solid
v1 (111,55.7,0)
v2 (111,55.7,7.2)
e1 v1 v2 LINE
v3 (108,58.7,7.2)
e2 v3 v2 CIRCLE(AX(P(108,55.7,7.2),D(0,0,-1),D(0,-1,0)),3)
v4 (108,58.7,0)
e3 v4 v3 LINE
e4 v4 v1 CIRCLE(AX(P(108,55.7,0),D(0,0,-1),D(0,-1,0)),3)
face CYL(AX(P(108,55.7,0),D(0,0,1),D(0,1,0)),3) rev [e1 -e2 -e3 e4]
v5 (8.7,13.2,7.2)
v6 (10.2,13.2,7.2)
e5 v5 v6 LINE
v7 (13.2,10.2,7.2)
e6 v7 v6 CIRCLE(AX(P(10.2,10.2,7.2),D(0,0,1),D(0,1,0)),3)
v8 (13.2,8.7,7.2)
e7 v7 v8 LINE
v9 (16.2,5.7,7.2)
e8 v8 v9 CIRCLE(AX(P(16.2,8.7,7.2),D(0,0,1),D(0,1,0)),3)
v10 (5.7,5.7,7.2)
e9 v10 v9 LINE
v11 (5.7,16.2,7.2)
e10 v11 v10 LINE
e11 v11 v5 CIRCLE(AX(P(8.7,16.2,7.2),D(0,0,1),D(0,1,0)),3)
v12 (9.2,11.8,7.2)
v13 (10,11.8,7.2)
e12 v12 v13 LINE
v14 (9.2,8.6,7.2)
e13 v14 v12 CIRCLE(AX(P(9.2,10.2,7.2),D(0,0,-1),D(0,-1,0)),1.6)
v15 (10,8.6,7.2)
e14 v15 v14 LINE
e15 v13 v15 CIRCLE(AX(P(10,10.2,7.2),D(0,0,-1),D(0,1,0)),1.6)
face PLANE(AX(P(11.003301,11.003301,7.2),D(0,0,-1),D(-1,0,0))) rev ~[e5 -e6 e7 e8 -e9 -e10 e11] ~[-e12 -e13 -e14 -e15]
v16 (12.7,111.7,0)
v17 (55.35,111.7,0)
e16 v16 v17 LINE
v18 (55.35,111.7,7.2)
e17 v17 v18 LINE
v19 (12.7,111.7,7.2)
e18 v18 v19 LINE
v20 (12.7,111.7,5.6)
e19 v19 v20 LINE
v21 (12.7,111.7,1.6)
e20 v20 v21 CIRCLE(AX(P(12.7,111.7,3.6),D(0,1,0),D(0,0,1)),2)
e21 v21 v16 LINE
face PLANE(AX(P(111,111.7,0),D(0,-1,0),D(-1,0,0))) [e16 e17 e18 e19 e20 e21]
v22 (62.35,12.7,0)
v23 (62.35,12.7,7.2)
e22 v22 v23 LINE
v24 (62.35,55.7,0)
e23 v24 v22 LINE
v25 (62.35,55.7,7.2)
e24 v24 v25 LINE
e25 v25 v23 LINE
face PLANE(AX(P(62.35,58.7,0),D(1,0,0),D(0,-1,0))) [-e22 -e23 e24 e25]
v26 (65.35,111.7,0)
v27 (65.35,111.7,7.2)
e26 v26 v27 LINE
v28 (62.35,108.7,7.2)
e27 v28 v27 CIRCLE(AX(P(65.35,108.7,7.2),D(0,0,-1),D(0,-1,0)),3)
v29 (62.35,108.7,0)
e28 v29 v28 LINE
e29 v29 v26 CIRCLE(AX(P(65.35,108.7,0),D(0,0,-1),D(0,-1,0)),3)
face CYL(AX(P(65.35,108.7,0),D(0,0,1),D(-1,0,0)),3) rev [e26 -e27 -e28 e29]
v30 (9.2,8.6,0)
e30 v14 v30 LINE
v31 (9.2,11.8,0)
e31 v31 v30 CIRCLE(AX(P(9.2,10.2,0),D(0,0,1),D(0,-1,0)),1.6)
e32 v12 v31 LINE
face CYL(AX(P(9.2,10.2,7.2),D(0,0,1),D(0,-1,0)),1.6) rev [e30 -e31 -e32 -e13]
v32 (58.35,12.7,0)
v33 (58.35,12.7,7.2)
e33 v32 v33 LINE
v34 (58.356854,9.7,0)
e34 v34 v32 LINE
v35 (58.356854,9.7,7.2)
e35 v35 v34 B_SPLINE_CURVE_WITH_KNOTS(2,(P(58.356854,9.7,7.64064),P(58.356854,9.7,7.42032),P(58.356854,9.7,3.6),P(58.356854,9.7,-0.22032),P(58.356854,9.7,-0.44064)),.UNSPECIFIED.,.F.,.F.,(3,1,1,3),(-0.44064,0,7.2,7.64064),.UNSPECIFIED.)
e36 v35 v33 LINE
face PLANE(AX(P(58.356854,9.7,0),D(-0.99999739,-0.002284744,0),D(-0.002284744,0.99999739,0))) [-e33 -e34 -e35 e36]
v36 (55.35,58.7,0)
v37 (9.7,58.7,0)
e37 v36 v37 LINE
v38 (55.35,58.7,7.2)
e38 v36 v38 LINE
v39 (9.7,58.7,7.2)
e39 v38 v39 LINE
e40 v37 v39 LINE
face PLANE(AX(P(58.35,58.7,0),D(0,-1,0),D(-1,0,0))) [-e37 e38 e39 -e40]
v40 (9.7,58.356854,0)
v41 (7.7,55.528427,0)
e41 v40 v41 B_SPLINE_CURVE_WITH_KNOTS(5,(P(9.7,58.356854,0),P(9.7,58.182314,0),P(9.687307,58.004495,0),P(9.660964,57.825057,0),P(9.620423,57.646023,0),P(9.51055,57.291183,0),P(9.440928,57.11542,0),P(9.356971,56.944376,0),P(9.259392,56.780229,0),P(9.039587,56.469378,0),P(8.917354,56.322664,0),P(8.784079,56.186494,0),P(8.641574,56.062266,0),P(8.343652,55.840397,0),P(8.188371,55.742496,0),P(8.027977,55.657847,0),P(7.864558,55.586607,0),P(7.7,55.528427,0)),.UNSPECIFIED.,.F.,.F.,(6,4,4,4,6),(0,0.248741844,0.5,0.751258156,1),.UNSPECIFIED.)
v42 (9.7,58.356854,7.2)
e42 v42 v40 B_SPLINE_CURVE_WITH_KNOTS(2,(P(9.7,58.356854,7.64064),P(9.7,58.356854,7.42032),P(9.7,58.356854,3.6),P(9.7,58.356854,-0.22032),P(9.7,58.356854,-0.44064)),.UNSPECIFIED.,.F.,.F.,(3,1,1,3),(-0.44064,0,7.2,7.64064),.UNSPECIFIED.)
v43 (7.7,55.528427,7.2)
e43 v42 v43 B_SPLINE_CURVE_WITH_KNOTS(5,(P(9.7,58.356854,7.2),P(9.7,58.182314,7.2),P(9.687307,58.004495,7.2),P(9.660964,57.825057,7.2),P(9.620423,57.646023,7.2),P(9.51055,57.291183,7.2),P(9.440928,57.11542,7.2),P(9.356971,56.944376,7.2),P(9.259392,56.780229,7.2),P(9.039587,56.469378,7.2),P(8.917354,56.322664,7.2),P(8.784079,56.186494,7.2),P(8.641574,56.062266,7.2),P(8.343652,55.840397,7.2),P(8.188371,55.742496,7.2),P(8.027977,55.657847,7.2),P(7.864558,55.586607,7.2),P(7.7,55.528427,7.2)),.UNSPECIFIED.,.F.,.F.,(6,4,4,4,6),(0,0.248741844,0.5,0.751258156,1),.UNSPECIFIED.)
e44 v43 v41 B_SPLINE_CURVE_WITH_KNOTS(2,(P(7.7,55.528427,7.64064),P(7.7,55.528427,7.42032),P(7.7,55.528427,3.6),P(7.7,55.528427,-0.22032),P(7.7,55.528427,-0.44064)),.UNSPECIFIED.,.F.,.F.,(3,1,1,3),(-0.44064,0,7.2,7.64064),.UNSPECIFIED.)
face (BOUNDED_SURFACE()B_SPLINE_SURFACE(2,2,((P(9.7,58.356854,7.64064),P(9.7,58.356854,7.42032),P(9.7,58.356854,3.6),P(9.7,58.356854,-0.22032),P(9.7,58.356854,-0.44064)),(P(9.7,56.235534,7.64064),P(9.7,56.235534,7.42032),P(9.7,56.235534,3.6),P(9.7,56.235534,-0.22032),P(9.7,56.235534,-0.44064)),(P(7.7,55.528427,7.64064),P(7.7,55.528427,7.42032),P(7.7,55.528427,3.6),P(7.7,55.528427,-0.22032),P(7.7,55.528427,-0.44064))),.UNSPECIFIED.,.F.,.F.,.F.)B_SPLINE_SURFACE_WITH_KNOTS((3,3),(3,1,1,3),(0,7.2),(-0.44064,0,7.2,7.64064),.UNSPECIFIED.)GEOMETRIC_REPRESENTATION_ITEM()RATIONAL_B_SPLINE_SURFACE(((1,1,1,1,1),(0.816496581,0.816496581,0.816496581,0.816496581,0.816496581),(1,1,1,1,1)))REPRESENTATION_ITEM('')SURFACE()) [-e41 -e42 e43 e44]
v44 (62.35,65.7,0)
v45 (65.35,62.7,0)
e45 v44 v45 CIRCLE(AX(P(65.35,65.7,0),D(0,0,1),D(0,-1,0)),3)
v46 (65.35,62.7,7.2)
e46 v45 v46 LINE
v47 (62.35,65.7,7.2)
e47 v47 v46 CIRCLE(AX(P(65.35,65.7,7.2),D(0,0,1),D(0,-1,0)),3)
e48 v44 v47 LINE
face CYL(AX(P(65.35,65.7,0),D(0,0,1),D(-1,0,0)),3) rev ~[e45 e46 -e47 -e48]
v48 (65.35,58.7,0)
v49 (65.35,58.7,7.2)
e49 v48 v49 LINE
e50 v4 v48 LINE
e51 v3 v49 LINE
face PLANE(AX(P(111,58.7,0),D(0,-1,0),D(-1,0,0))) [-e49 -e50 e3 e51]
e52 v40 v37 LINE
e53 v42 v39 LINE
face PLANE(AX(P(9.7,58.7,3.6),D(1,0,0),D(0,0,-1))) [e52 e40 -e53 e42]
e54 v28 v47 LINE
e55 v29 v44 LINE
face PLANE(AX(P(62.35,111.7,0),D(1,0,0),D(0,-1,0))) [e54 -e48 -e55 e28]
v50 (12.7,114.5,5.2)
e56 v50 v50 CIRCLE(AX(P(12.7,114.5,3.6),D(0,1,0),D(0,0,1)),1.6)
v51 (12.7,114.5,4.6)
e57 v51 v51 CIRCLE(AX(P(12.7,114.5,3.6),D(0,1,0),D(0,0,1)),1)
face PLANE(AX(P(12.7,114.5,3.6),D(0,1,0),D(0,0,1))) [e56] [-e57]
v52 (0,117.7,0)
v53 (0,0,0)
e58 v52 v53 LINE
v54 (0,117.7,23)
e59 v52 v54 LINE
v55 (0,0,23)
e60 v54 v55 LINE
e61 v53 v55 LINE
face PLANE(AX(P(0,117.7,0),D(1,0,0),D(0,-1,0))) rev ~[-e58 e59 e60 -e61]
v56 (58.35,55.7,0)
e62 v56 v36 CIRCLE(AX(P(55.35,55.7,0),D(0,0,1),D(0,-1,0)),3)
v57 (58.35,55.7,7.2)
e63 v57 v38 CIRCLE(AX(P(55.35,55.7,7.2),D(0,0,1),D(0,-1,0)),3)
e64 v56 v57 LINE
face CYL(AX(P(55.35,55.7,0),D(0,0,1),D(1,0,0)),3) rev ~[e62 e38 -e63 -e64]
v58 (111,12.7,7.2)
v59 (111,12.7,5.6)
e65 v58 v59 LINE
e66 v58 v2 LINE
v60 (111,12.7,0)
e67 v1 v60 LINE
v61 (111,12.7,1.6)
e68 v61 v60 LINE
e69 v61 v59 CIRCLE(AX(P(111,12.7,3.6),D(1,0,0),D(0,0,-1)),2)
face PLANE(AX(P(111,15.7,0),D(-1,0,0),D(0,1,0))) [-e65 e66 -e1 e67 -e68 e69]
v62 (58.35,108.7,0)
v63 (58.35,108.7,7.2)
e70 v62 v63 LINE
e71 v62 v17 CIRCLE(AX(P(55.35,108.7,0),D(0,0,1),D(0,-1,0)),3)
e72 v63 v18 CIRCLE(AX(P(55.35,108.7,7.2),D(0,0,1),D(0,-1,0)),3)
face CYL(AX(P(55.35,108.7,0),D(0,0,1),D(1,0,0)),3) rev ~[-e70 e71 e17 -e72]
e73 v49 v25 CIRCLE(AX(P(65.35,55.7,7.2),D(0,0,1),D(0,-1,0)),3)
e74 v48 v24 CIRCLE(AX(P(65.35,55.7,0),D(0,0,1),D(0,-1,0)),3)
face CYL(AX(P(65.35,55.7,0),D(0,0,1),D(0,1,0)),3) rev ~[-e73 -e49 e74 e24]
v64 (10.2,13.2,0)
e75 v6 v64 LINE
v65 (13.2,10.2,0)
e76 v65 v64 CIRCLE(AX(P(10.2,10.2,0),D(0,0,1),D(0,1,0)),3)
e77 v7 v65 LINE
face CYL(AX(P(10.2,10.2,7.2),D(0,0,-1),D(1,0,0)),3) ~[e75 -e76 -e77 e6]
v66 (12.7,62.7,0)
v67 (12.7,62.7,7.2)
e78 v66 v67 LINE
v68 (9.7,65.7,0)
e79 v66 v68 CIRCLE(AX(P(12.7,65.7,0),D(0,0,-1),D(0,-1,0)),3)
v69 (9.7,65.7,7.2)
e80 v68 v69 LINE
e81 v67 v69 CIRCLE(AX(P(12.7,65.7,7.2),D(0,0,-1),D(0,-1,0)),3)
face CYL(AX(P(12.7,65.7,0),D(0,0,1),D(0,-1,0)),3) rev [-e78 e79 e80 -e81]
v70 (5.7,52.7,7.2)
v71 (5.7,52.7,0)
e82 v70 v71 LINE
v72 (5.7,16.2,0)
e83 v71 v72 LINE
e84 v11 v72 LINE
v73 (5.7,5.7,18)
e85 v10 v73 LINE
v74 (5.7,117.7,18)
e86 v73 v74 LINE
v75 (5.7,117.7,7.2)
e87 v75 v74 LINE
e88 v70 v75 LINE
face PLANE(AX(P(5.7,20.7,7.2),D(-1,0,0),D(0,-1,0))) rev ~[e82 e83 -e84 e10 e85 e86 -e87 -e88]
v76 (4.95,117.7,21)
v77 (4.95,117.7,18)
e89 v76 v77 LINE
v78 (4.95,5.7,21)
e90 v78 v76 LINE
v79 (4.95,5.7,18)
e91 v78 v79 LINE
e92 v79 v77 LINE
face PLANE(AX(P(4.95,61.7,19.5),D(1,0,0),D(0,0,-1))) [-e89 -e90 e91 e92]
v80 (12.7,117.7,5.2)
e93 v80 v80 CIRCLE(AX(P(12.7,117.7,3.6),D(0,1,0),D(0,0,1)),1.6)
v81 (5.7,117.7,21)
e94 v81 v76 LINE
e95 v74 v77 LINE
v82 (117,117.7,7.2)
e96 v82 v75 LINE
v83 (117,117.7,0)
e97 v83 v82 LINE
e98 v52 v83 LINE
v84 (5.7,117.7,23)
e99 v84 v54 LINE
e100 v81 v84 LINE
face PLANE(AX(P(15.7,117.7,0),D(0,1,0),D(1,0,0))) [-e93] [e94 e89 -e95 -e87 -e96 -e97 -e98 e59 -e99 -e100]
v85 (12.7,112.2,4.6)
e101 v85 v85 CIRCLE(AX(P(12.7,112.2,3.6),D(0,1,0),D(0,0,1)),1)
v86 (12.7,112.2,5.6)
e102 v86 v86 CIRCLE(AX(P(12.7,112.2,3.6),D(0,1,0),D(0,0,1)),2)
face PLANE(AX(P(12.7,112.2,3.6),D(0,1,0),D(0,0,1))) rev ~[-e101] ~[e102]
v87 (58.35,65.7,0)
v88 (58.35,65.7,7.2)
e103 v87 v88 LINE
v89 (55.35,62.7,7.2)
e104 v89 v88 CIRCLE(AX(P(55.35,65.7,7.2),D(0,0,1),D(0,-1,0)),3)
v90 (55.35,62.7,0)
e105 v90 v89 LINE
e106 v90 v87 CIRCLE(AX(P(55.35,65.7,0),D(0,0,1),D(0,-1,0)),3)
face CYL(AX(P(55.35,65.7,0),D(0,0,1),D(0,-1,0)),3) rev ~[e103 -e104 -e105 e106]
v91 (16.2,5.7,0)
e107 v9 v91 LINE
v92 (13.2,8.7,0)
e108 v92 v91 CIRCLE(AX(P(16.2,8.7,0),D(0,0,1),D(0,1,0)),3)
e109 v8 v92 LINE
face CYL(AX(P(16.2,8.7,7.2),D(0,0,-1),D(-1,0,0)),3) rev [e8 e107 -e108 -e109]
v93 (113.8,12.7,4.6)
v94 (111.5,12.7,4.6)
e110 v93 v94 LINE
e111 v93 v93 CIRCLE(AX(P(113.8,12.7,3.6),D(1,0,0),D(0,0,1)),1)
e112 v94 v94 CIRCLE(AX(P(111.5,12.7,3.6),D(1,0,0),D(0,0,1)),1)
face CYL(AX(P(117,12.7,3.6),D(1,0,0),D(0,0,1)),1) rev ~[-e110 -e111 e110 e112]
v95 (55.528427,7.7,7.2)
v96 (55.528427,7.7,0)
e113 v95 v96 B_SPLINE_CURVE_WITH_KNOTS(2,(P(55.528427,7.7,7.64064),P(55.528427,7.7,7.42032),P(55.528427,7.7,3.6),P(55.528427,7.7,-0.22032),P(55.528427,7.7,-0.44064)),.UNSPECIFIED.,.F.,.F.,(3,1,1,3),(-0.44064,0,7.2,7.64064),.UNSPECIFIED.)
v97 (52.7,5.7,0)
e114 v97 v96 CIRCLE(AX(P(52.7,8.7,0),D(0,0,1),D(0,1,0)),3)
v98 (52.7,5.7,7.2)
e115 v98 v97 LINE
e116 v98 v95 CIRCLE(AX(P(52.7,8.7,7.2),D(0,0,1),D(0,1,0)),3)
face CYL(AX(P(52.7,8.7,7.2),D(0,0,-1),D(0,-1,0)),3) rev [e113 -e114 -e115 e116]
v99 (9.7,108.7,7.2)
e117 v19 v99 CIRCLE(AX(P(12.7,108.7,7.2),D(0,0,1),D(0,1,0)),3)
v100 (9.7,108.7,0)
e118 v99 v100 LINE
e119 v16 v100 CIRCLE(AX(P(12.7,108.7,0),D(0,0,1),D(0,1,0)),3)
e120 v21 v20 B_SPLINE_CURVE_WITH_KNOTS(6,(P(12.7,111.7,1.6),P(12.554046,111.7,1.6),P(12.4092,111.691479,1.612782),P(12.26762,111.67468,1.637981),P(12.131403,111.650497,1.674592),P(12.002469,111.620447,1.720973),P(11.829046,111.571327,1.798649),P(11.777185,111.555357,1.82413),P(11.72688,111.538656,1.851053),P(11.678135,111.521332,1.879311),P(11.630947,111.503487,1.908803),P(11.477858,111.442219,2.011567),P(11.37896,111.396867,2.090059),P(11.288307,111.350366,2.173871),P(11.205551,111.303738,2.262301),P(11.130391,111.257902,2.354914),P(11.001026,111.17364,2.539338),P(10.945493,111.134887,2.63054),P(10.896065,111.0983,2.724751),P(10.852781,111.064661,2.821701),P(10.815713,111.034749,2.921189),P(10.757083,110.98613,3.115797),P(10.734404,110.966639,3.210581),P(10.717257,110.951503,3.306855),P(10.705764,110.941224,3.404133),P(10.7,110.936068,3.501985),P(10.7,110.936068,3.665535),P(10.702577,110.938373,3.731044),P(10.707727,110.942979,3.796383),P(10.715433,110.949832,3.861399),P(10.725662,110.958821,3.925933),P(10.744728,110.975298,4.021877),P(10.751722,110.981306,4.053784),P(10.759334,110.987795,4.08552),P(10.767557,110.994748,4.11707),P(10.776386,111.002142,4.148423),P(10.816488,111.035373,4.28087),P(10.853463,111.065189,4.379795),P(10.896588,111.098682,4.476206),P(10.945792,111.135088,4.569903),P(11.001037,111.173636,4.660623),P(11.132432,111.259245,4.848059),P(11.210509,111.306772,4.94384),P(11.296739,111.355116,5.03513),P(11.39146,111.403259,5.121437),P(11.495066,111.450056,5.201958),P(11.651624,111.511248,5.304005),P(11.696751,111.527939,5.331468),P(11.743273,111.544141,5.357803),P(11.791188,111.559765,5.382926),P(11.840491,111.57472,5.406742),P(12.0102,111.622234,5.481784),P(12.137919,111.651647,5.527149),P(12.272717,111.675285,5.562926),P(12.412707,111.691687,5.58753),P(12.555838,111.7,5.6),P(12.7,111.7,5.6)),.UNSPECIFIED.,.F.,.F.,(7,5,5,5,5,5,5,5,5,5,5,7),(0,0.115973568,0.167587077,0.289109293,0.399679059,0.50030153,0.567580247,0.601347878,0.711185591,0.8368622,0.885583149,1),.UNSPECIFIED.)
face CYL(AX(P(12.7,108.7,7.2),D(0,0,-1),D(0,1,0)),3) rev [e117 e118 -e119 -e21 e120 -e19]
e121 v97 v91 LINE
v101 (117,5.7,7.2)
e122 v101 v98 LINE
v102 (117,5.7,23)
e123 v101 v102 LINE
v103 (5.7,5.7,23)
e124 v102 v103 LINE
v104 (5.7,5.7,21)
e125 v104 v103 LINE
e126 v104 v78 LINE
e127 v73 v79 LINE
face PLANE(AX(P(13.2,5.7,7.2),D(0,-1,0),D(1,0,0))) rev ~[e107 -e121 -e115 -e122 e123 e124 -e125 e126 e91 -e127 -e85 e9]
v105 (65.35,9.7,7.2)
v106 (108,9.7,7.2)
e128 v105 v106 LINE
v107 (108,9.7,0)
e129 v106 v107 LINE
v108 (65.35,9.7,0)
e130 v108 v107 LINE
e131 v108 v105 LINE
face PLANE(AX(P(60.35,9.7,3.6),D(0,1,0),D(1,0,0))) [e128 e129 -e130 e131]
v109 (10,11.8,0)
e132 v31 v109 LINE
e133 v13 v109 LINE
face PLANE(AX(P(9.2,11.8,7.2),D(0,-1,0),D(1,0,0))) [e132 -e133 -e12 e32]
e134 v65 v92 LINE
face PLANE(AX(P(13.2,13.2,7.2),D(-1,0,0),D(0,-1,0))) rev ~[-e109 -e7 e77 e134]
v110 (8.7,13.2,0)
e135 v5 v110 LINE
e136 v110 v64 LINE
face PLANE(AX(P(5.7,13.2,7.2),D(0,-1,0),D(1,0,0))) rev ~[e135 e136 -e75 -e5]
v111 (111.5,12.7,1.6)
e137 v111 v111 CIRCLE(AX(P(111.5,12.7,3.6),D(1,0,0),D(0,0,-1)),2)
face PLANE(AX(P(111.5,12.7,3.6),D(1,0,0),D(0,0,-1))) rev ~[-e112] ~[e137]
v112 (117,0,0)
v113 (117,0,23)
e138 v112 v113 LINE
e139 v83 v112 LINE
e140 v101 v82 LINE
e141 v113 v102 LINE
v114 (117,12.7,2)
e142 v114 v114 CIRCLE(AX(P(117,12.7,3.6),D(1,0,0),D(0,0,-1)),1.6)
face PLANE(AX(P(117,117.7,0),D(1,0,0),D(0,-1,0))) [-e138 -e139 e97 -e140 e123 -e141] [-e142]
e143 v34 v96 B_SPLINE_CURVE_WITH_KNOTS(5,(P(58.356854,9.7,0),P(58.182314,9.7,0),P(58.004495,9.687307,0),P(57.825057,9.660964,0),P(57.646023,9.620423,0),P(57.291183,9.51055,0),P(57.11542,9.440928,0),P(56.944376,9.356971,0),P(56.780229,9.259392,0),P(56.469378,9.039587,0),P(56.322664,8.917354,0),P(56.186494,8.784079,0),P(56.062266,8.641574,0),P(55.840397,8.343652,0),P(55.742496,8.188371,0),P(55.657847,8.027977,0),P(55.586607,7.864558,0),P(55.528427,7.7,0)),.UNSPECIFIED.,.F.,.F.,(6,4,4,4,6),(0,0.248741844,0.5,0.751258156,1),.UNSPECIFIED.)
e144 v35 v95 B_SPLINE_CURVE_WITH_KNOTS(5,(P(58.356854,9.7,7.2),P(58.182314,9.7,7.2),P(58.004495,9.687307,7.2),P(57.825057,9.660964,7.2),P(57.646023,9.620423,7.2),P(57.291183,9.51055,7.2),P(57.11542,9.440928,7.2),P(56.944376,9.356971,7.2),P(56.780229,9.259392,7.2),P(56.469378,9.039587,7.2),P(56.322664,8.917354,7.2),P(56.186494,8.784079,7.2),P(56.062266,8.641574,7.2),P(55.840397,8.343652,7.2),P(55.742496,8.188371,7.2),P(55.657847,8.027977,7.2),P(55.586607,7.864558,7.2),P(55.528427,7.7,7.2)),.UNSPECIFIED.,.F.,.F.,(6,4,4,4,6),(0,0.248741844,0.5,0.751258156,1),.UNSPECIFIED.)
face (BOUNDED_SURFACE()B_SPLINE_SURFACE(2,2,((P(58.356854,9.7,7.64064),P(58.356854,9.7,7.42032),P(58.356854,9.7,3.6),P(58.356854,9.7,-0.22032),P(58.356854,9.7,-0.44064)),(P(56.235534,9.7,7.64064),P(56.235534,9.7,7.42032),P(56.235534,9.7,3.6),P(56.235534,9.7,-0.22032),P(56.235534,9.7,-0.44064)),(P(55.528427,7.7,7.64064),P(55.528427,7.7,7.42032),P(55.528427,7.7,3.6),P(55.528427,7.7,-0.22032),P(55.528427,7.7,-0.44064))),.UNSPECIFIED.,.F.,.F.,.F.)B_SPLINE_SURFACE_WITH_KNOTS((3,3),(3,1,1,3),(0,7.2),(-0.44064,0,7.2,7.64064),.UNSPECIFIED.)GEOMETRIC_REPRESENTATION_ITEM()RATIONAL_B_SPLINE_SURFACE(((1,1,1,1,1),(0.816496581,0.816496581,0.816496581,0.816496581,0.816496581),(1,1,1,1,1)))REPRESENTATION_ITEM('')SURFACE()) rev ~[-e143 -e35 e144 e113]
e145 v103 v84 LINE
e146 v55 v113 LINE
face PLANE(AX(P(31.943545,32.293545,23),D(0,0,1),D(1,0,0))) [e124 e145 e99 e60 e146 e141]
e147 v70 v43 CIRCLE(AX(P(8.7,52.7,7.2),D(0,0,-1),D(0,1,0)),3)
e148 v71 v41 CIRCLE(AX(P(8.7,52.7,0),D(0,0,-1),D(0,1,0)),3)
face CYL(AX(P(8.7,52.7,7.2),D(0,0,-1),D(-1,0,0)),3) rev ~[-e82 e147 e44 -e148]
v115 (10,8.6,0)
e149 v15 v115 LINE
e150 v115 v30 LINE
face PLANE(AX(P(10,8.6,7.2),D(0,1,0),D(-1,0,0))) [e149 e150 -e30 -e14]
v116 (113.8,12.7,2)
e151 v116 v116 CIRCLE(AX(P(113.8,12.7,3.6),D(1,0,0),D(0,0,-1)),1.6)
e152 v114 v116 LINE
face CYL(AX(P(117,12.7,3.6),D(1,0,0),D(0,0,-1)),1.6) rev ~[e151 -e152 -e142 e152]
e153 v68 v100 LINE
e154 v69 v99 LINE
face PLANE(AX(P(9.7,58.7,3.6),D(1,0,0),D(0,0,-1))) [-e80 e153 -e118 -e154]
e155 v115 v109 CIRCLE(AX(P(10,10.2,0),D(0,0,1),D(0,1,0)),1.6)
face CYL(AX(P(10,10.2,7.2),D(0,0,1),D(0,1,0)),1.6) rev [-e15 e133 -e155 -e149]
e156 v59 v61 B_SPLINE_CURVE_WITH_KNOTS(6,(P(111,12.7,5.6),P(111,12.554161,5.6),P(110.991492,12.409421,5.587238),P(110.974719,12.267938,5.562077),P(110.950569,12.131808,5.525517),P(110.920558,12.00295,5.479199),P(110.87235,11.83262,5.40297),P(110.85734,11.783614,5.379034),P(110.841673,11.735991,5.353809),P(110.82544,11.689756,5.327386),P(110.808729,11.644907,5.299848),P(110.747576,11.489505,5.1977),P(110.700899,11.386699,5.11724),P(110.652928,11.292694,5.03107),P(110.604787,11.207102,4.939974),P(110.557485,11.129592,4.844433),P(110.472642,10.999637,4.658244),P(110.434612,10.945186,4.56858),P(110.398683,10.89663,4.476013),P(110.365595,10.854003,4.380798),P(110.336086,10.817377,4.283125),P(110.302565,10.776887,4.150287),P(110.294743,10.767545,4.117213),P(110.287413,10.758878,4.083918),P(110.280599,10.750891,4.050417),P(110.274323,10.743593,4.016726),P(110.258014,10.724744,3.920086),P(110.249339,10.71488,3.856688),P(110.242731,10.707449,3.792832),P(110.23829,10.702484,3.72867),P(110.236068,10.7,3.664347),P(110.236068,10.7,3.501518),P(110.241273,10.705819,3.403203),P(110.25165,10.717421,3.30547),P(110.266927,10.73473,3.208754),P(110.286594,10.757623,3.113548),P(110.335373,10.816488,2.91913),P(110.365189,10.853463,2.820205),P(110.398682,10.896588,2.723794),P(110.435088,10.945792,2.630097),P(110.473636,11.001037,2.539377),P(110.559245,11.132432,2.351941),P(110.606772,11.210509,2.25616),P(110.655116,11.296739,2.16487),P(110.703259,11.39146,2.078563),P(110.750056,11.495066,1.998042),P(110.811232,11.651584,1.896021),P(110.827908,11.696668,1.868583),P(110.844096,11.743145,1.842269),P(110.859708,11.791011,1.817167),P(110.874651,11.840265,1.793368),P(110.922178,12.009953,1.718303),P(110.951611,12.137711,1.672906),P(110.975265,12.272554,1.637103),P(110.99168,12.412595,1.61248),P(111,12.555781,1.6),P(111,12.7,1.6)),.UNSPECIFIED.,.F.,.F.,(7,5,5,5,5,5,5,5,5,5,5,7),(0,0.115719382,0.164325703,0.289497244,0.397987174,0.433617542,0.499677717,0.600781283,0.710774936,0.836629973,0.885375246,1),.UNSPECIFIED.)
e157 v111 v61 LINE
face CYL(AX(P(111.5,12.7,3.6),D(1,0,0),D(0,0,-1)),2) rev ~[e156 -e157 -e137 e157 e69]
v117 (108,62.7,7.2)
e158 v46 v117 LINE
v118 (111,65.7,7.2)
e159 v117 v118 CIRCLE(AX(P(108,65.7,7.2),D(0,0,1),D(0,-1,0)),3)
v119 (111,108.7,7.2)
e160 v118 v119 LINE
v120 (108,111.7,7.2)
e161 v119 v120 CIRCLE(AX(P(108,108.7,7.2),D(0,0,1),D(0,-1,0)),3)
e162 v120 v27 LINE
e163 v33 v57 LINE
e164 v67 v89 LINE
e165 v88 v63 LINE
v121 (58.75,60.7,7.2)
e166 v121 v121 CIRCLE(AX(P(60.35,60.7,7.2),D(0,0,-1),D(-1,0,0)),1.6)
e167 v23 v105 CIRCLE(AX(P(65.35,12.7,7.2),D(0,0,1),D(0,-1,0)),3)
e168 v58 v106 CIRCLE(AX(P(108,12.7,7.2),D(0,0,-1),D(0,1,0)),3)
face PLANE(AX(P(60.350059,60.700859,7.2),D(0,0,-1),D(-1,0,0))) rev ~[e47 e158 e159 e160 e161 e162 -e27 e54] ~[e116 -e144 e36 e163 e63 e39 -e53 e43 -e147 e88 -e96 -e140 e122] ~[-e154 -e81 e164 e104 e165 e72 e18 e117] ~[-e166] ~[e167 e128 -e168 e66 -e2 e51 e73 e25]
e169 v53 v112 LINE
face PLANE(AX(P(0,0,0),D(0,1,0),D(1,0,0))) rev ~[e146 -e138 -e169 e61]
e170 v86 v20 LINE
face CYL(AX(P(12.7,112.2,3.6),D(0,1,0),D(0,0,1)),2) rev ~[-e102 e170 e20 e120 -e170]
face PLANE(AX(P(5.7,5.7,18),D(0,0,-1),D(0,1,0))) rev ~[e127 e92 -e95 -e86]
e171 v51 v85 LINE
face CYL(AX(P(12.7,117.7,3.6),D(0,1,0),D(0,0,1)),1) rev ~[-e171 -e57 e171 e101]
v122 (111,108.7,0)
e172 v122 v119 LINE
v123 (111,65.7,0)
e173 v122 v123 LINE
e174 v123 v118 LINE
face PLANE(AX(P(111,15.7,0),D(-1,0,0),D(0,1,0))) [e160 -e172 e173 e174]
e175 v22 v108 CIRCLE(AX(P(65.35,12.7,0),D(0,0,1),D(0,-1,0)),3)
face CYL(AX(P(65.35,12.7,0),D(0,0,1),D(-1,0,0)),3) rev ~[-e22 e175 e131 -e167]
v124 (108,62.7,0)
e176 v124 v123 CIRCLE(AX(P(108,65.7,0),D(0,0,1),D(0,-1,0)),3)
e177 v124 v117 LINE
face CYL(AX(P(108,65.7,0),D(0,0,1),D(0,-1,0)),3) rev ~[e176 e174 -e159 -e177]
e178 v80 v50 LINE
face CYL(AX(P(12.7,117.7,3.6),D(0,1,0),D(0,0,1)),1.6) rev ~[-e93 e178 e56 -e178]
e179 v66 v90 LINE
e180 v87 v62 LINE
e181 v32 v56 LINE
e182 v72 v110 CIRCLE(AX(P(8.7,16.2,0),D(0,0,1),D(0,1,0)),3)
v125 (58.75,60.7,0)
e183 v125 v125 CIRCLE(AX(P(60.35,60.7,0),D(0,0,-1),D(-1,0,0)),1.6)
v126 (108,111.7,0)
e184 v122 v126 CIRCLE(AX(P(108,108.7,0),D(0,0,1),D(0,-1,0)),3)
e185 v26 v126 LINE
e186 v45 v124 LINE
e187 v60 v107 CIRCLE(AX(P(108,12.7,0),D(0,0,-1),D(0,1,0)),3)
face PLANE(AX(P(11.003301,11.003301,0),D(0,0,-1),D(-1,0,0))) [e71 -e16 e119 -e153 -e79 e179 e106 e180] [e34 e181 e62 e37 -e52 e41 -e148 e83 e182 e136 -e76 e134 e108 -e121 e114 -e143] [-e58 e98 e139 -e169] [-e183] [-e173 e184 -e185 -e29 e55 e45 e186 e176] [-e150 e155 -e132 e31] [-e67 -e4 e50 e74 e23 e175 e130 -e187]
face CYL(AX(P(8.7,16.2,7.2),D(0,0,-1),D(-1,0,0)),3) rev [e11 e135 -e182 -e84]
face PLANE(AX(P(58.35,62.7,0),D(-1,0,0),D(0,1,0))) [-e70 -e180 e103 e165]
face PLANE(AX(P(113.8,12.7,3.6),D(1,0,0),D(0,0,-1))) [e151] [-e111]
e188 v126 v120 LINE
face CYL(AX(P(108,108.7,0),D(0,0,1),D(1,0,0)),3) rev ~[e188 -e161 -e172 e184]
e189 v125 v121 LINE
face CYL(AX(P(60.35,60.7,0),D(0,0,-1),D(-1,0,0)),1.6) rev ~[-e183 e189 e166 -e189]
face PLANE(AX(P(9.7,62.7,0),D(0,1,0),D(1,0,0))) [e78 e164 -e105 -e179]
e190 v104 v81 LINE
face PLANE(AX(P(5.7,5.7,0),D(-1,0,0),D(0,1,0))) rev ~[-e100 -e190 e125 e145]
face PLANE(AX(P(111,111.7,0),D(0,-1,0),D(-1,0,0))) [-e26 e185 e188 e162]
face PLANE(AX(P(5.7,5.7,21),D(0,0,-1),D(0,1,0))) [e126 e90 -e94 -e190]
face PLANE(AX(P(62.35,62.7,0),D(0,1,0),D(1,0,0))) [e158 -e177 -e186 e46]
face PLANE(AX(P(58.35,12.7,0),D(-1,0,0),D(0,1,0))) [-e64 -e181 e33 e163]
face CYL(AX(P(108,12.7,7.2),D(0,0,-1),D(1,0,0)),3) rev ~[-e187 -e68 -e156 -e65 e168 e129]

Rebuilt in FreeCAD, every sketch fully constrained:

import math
import FreeCAD as App
import Part
import Sketcher


def edges_at(feature, points):
    """Names of the edges that pass closest to the given points."""
    edges = feature.Shape.Edges
    near = lambda p: min(range(len(edges)), key=lambda i: edges[i].distToShape(Part.Vertex(*p))[0])
    return sorted({f"Edge{near(p) + 1}" for p in points})


def add_polygon(sketch, points):
    """Adds a closed chain of lines whose ends are joined by coincident constraints."""
    first, n = sketch.GeometryCount, len(points)
    for a, b in zip(points, points[1:] + points[:1]):
        sketch.addGeometry(Part.LineSegment(App.Vector(*a, 0), App.Vector(*b, 0)), False)
    for i in range(n):
        sketch.addConstraint(Sketcher.Constraint("Coincident", first + i, 2, first + (i + 1) % n, 1))

doc = App.newDocument("Part")
body = doc.addObject("PartDesign::Body", "Body")

sketch1 = doc.addObject("Sketcher::SketchObject", "Sketch")
body.addObject(sketch1)
sketch1.AttachmentSupport = (doc.XY_Plane, [""])
sketch1.MapMode = "FlatFace"
add_polygon(sketch1, [(0, 118), (0, 0), (117, 0), (117, 6), (6, 6), (6, 118)])
sketch1.addConstraint(Sketcher.Constraint("Vertical", 0))
sketch1.addConstraint(Sketcher.Constraint("Horizontal", 1))
sketch1.addConstraint(Sketcher.Constraint("Vertical", 2))
sketch1.addConstraint(Sketcher.Constraint("Horizontal", 3))
sketch1.addConstraint(Sketcher.Constraint("Vertical", 4))
sketch1.addConstraint(Sketcher.Constraint("Horizontal", 5))
sketch1.addConstraint(Sketcher.Constraint("Coincident", 0, 2, -1, 1))
sketch1.addConstraint(Sketcher.Constraint("Equal", 5, 2))
sketch1.addConstraint(Sketcher.Constraint("DistanceX", 1, 1, 1, 2, 117.0))
sketch1.addConstraint(Sketcher.Constraint("DistanceY", 4, 1, 4, 2, 112.0))
sketch1.addConstraint(Sketcher.Constraint("DistanceX", 3, 2, 3, 1, 111.3))
pad1 = doc.addObject("PartDesign::Pad", "Pad")
body.addObject(pad1)
pad1.Profile = sketch1
pad1.Length = 23

sketch2 = doc.addObject("Sketcher::SketchObject", "Sketch001")
body.addObject(sketch2)
sketch2.AttachmentSupport = (doc.YZ_Plane, [""])
sketch2.MapMode = "FlatFace"
sketch2.AttachmentOffset = App.Placement(App.Vector(0, 0, 5.7), App.Rotation())
add_polygon(sketch2, [(117.7, 21), (5.7, 21), (5.7, 18), (117.7, 18)])
sketch2.addConstraint(Sketcher.Constraint("Horizontal", 0))
sketch2.addConstraint(Sketcher.Constraint("Vertical", 1))
sketch2.addConstraint(Sketcher.Constraint("Horizontal", 2))
sketch2.addConstraint(Sketcher.Constraint("Vertical", 3))
sketch2.addConstraint(Sketcher.Constraint("DistanceX", 0, 2, 0, 1, 112.0))
sketch2.addConstraint(Sketcher.Constraint("DistanceY", 1, 2, 1, 1, 3.0))
sketch2.addConstraint(Sketcher.Constraint("DistanceY", -1, 1, 0, 2, 21.0))
sketch2.addConstraint(Sketcher.Constraint("DistanceX", -1, 1, 0, 2, 5.7))
pocket1 = doc.addObject("PartDesign::Pocket", "Pocket")
body.addObject(pocket1)
pocket1.Profile = sketch2
pocket1.Length = 0.75

sketch3 = doc.addObject("Sketcher::SketchObject", "Sketch002")
body.addObject(sketch3)
sketch3.AttachmentSupport = (doc.YZ_Plane, [""])
sketch3.MapMode = "FlatFace"
sketch3.AttachmentOffset = App.Placement(App.Vector(0, 0, 5.7), App.Rotation())
add_polygon(sketch3, [(118, 7), (112, 7), (112, 0), (118, 0)])
sketch3.addConstraint(Sketcher.Constraint("Horizontal", 0))
sketch3.addConstraint(Sketcher.Constraint("Vertical", 1))
sketch3.addConstraint(Sketcher.Constraint("Horizontal", 2))
sketch3.addConstraint(Sketcher.Constraint("Vertical", 3))
sketch3.addConstraint(Sketcher.Constraint("PointOnObject", 1, 2, -1))
sketch3.addConstraint(Sketcher.Constraint("DistanceX", 0, 2, 0, 1, 6.0))
sketch3.addConstraint(Sketcher.Constraint("DistanceY", 1, 2, 1, 1, 7.2))
sketch3.addConstraint(Sketcher.Constraint("DistanceX", -1, 1, 0, 2, 111.7))
pad2 = doc.addObject("PartDesign::Pad", "Pad001")
body.addObject(pad2)
pad2.Profile = sketch3
pad2.Length = 10

sketch4 = doc.addObject("Sketcher::SketchObject", "Sketch003")
body.addObject(sketch4)
sketch4.AttachmentSupport = (doc.YZ_Plane, [""])
sketch4.MapMode = "FlatFace"
sketch4.AttachmentOffset = App.Placement(App.Vector(0, 0, 5.7), App.Rotation())
add_polygon(sketch4, [(112, 7), (6, 7), (6, 0), (112, 0)])
sketch4.addConstraint(Sketcher.Constraint("Horizontal", 0))
sketch4.addConstraint(Sketcher.Constraint("Vertical", 1))
sketch4.addConstraint(Sketcher.Constraint("Horizontal", 2))
sketch4.addConstraint(Sketcher.Constraint("Vertical", 3))
sketch4.addConstraint(Sketcher.Constraint("PointOnObject", 1, 2, -1))
sketch4.addConstraint(Sketcher.Constraint("DistanceX", 0, 2, 0, 1, 106.0))
sketch4.addConstraint(Sketcher.Constraint("DistanceY", 1, 2, 1, 1, 7.2))
sketch4.addConstraint(Sketcher.Constraint("DistanceX", -1, 1, 0, 2, 5.7))
pad3 = doc.addObject("PartDesign::Pad", "Pad002")
body.addObject(pad3)
pad3.Profile = sketch4
pad3.Length = 4
doc.recompute()

fillet = doc.addObject("PartDesign::Fillet", "Fillet")
body.addObject(fillet)
fillet.Base = (pad3, edges_at(pad3, [(9.7, 111.7, 3.6)]))
fillet.Radius = 3

sketch5 = doc.addObject("Sketcher::SketchObject", "Sketch004")
body.addObject(sketch5)
sketch5.AttachmentSupport = (doc.XZ_Plane, [""])
sketch5.MapMode = "FlatFace"
sketch5.AttachmentOffset = App.Placement(App.Vector(0, 0, -5.7), App.Rotation())
add_polygon(sketch5, [(10, 0), (10, 7), (111, 7), (111, 0)])
sketch5.addConstraint(Sketcher.Constraint("Vertical", 0))
sketch5.addConstraint(Sketcher.Constraint("Horizontal", 1))
sketch5.addConstraint(Sketcher.Constraint("Vertical", 2))
sketch5.addConstraint(Sketcher.Constraint("Horizontal", 3))
sketch5.addConstraint(Sketcher.Constraint("PointOnObject", 2, 2, -1))
sketch5.addConstraint(Sketcher.Constraint("DistanceX", 1, 1, 1, 2, 101.3))
sketch5.addConstraint(Sketcher.Constraint("DistanceY", 0, 1, 0, 2, 7.2))
sketch5.addConstraint(Sketcher.Constraint("DistanceX", -1, 1, 1, 2, 111.0))
pad4 = doc.addObject("PartDesign::Pad", "Pad003")
body.addObject(pad4)
pad4.Profile = sketch5
pad4.Length = 4
pad4.Reversed = True

sketch6 = doc.addObject("Sketcher::SketchObject", "Sketch005")
body.addObject(sketch6)
sketch6.AttachmentSupport = (doc.XZ_Plane, [""])
sketch6.MapMode = "FlatFace"
sketch6.AttachmentOffset = App.Placement(App.Vector(0, 0, -5.7), App.Rotation())
add_polygon(sketch6, [(111, 0), (111, 7), (117, 7), (117, 0)])
sketch6.addConstraint(Sketcher.Constraint("Vertical", 0))
sketch6.addConstraint(Sketcher.Constraint("Horizontal", 1))
sketch6.addConstraint(Sketcher.Constraint("Vertical", 2))
sketch6.addConstraint(Sketcher.Constraint("Horizontal", 3))
sketch6.addConstraint(Sketcher.Constraint("PointOnObject", 2, 2, -1))
sketch6.addConstraint(Sketcher.Constraint("DistanceX", 1, 1, 1, 2, 6.0))
sketch6.addConstraint(Sketcher.Constraint("DistanceY", 0, 1, 0, 2, 7.2))
sketch6.addConstraint(Sketcher.Constraint("DistanceX", -1, 1, 0, 2, 111.0))
pad5 = doc.addObject("PartDesign::Pad", "Pad004")
body.addObject(pad5)
pad5.Profile = sketch6
pad5.Length = 10
pad5.Reversed = True
doc.recompute()

fillet2 = doc.addObject("PartDesign::Fillet", "Fillet001")
body.addObject(fillet2)
fillet2.Base = (pad5, edges_at(pad5, [(111, 9.7, 3.6)]))
fillet2.Radius = 3

sketch7 = doc.addObject("Sketcher::SketchObject", "Sketch006")
body.addObject(sketch7)
sketch7.AttachmentSupport = (doc.XY_Plane, [""])
sketch7.MapMode = "FlatFace"
sketch7.AttachmentOffset = App.Placement(App.Vector(0, 0, 7.2), App.Rotation())
add_polygon(sketch7, [(6, 56), (6, 6), (56, 6), (56, 56)])
sketch7.addConstraint(Sketcher.Constraint("Vertical", 0))
sketch7.addConstraint(Sketcher.Constraint("Horizontal", 1))
sketch7.addConstraint(Sketcher.Constraint("Vertical", 2))
sketch7.addConstraint(Sketcher.Constraint("Horizontal", 3))
sketch7.addConstraint(Sketcher.Constraint("Equal", 3, 0))
sketch7.addConstraint(Sketcher.Constraint("DistanceX", 1, 1, 1, 2, 50.0))
sketch7.addConstraint(Sketcher.Constraint("DistanceX", -1, 1, 0, 2, 5.7))
sketch7.addConstraint(Sketcher.Constraint("DistanceY", -1, 1, 0, 2, 5.7))
pocket2 = doc.addObject("PartDesign::Pocket", "Pocket001")
body.addObject(pocket2)
pocket2.Profile = sketch7
pocket2.Type = "ThroughAll"
doc.recompute()

fillet3 = doc.addObject("PartDesign::Fillet", "Fillet002")
body.addObject(fillet3)
fillet3.Base = (pocket2, edges_at(pocket2, [(5.7, 55.7, 3.6)]))
fillet3.Radius = 3
doc.recompute()

fillet4 = doc.addObject("PartDesign::Fillet", "Fillet003")
body.addObject(fillet4)
fillet4.Base = (fillet3, edges_at(fillet3, [(9.7, 55.7, 3.6)]))
fillet4.Radius = 3
doc.recompute()

fillet5 = doc.addObject("PartDesign::Fillet", "Fillet004")
body.addObject(fillet5)
fillet5.Base = (fillet4, edges_at(fillet4, [(55.7, 5.7, 3.6)]))
fillet5.Radius = 3
doc.recompute()

fillet6 = doc.addObject("PartDesign::Fillet", "Fillet005")
body.addObject(fillet6)
fillet6.Base = (fillet5, edges_at(fillet5, [(55.7, 9.7, 3.6)]))
fillet6.Radius = 3

sketch8 = doc.addObject("Sketcher::SketchObject", "Sketch007")
body.addObject(sketch8)
sketch8.AttachmentSupport = (doc.YZ_Plane, [""])
sketch8.MapMode = "FlatFace"
sketch8.AttachmentOffset = App.Placement(App.Vector(0, 0, 117), App.Rotation())
sketch8.addGeometry(Part.Circle(App.Vector(12.7, 3.6, 0), App.Vector(0, 0, 1), 1), False)
sketch8.addConstraint(Sketcher.Constraint("Diameter", 0, 2.0))
sketch8.addConstraint(Sketcher.Constraint("DistanceX", -1, 1, 0, 3, 12.7))
sketch8.addConstraint(Sketcher.Constraint("DistanceY", -1, 1, 0, 3, 3.6))
pocket3 = doc.addObject("PartDesign::Pocket", "Pocket002")
body.addObject(pocket3)
pocket3.Profile = sketch8
pocket3.Length = 6

sketch9 = doc.addObject("Sketcher::SketchObject", "Sketch008")
body.addObject(sketch9)
sketch9.AttachmentSupport = (doc.YZ_Plane, [""])
sketch9.MapMode = "FlatFace"
sketch9.AttachmentOffset = App.Placement(App.Vector(0, 0, 117), App.Rotation())
sketch9.addGeometry(Part.Circle(App.Vector(12.7, 3.6, 0), App.Vector(0, 0, 1), 1), False)
sketch9.addConstraint(Sketcher.Constraint("Diameter", 0, 2.0))
sketch9.addConstraint(Sketcher.Constraint("DistanceX", -1, 1, 0, 3, 12.7))
sketch9.addConstraint(Sketcher.Constraint("DistanceY", -1, 1, 0, 3, 3.6))
pocket4 = doc.addObject("PartDesign::Pocket", "Pocket003")
body.addObject(pocket4)
pocket4.Profile = sketch9
pocket4.Length = 168.54489
pocket4.Reversed = True

sketch10 = doc.addObject("Sketcher::SketchObject", "Sketch009")
body.addObject(sketch10)
sketch10.AttachmentSupport = (doc.YZ_Plane, [""])
sketch10.MapMode = "FlatFace"
sketch10.AttachmentOffset = App.Placement(App.Vector(0, 0, 117), App.Rotation())
sketch10.addGeometry(Part.Circle(App.Vector(12.7, 3.6, 0), App.Vector(0, 0, 1), 1.6), False)
sketch10.addGeometry(Part.Circle(App.Vector(12.7, 3.6, 0), App.Vector(0, 0, 1), 1), False)
sketch10.addConstraint(Sketcher.Constraint("Coincident", 1, 3, 0, 3))
sketch10.addConstraint(Sketcher.Constraint("Diameter", 1, 2.0))
sketch10.addConstraint(Sketcher.Constraint("Diameter", 0, 3.2))
sketch10.addConstraint(Sketcher.Constraint("DistanceX", -1, 1, 0, 3, 12.7))
sketch10.addConstraint(Sketcher.Constraint("DistanceY", -1, 1, 0, 3, 3.6))
pocket5 = doc.addObject("PartDesign::Pocket", "Pocket004")
body.addObject(pocket5)
pocket5.Profile = sketch10
pocket5.Length = 3.2

sketch11 = doc.addObject("Sketcher::SketchObject", "Sketch010")
body.addObject(sketch11)
sketch11.AttachmentSupport = (doc.YZ_Plane, [""])
sketch11.MapMode = "FlatFace"
sketch11.AttachmentOffset = App.Placement(App.Vector(0, 0, 111.5), App.Rotation())
sketch11.addGeometry(Part.Circle(App.Vector(12.7, 3.6, 0), App.Vector(0, 0, 1), 2), False)
sketch11.addConstraint(Sketcher.Constraint("Diameter", 0, 4.0))
sketch11.addConstraint(Sketcher.Constraint("DistanceX", -1, 1, 0, 3, 12.7))
sketch11.addConstraint(Sketcher.Constraint("DistanceY", -1, 1, 0, 3, 3.6))
pocket6 = doc.addObject("PartDesign::Pocket", "Pocket005")
body.addObject(pocket6)
pocket6.Profile = sketch11
pocket6.Length = 3

sketch12 = doc.addObject("Sketcher::SketchObject", "Sketch011")
body.addObject(sketch12)
sketch12.AttachmentSupport = (doc.XZ_Plane, [""])
sketch12.MapMode = "FlatFace"
sketch12.AttachmentOffset = App.Placement(App.Vector(0, 0, -117.7), App.Rotation())
sketch12.addGeometry(Part.Circle(App.Vector(12.7, 3.6, 0), App.Vector(0, 0, 1), 1), False)
sketch12.addConstraint(Sketcher.Constraint("Diameter", 0, 2.0))
sketch12.addConstraint(Sketcher.Constraint("DistanceX", -1, 1, 0, 3, 12.7))
sketch12.addConstraint(Sketcher.Constraint("DistanceY", -1, 1, 0, 3, 3.6))
pocket7 = doc.addObject("PartDesign::Pocket", "Pocket006")
body.addObject(pocket7)
pocket7.Profile = sketch12
pocket7.Type = "UpToFirst"
pocket7.Reversed = True

sketch13 = doc.addObject("Sketcher::SketchObject", "Sketch012")
body.addObject(sketch13)
sketch13.AttachmentSupport = (doc.XZ_Plane, [""])
sketch13.MapMode = "FlatFace"
sketch13.AttachmentOffset = App.Placement(App.Vector(0, 0, -117.7), App.Rotation())
sketch13.addGeometry(Part.Circle(App.Vector(12.7, 3.6, 0), App.Vector(0, 0, 1), 1.6), False)
sketch13.addGeometry(Part.Circle(App.Vector(12.7, 3.6, 0), App.Vector(0, 0, 1), 1), False)
sketch13.addConstraint(Sketcher.Constraint("Coincident", 1, 3, 0, 3))
sketch13.addConstraint(Sketcher.Constraint("Diameter", 1, 2.0))
sketch13.addConstraint(Sketcher.Constraint("Diameter", 0, 3.2))
sketch13.addConstraint(Sketcher.Constraint("DistanceX", -1, 1, 0, 3, 12.7))
sketch13.addConstraint(Sketcher.Constraint("DistanceY", -1, 1, 0, 3, 3.6))
pocket8 = doc.addObject("PartDesign::Pocket", "Pocket007")
body.addObject(pocket8)
pocket8.Profile = sketch13
pocket8.Length = 3.2
pocket8.Reversed = True

sketch14 = doc.addObject("Sketcher::SketchObject", "Sketch013")
body.addObject(sketch14)
sketch14.AttachmentSupport = (doc.XZ_Plane, [""])
sketch14.MapMode = "FlatFace"
sketch14.AttachmentOffset = App.Placement(App.Vector(0, 0, -112.2), App.Rotation())
sketch14.addGeometry(Part.Circle(App.Vector(12.7, 3.6, 0), App.Vector(0, 0, 1), 2), False)
sketch14.addConstraint(Sketcher.Constraint("Diameter", 0, 4.0))
sketch14.addConstraint(Sketcher.Constraint("DistanceX", -1, 1, 0, 3, 12.7))
sketch14.addConstraint(Sketcher.Constraint("DistanceY", -1, 1, 0, 3, 3.6))
pocket9 = doc.addObject("PartDesign::Pocket", "Pocket008")
body.addObject(pocket9)
pocket9.Profile = sketch14
pocket9.Length = 3.2
pocket9.Reversed = True

sketch15 = doc.addObject("Sketcher::SketchObject", "Sketch014")
body.addObject(sketch15)
sketch15.AttachmentSupport = (doc.XY_Plane, [""])
sketch15.MapMode = "FlatFace"
add_polygon(sketch15, [(117, 16), (111, 16), (111, 112), (16, 112), (16, 118), (117, 118)])
sketch15.addConstraint(Sketcher.Constraint("Horizontal", 0))
sketch15.addConstraint(Sketcher.Constraint("Vertical", 1))
sketch15.addConstraint(Sketcher.Constraint("Horizontal", 2))
sketch15.addConstraint(Sketcher.Constraint("Vertical", 3))
sketch15.addConstraint(Sketcher.Constraint("Horizontal", 4))
sketch15.addConstraint(Sketcher.Constraint("Vertical", 5))
sketch15.addConstraint(Sketcher.Constraint("Equal", 0, 3))
sketch15.addConstraint(Sketcher.Constraint("DistanceX", 0, 2, 0, 1, 6.0))
sketch15.addConstraint(Sketcher.Constraint("DistanceY", 1, 1, 1, 2, 96.0))
sketch15.addConstraint(Sketcher.Constraint("DistanceX", 2, 2, 2, 1, 95.3))
sketch15.addConstraint(Sketcher.Constraint("DistanceX", -1, 1, 0, 2, 111.0))
sketch15.addConstraint(Sketcher.Constraint("DistanceY", -1, 1, 0, 2, 15.7))
pad6 = doc.addObject("PartDesign::Pad", "Pad005")
body.addObject(pad6)
pad6.Profile = sketch15
pad6.Length = 7.2
doc.recompute()

fillet7 = doc.addObject("PartDesign::Fillet", "Fillet006")
body.addObject(fillet7)
fillet7.Base = (pad6, edges_at(pad6, [(111, 111.7, 3.6)]))
fillet7.Radius = 3

sketch16 = doc.addObject("Sketcher::SketchObject", "Sketch015")
body.addObject(sketch16)
sketch16.AttachmentSupport = (doc.XY_Plane, [""])
sketch16.MapMode = "FlatFace"
add_polygon(sketch16, [(62.4, 9.7), (58.4, 9.7), (58.4, 12.7), (58.4, 58.7), (9.7, 58.7), (9.7, 62.7), (58.4, 62.7), (58.4, 111.7), (62.4, 111.7), (62.4, 62.7), (111, 62.7), (111, 58.7), (62.4, 58.7)])
sketch16.addConstraint(Sketcher.Constraint("Horizontal", 0))
sketch16.addConstraint(Sketcher.Constraint("Vertical", 2))
sketch16.addConstraint(Sketcher.Constraint("Horizontal", 3))
sketch16.addConstraint(Sketcher.Constraint("Vertical", 4))
sketch16.addConstraint(Sketcher.Constraint("Horizontal", 5))
sketch16.addConstraint(Sketcher.Constraint("Vertical", 6))
sketch16.addConstraint(Sketcher.Constraint("Horizontal", 7))
sketch16.addConstraint(Sketcher.Constraint("Vertical", 8))
sketch16.addConstraint(Sketcher.Constraint("Horizontal", 9))
sketch16.addConstraint(Sketcher.Constraint("Vertical", 10))
sketch16.addConstraint(Sketcher.Constraint("Horizontal", 11))
sketch16.addConstraint(Sketcher.Constraint("Vertical", 12))
sketch16.addConstraint(Sketcher.Constraint("Horizontal", 5, 2, 8, 2))
sketch16.addConstraint(Sketcher.Constraint("Horizontal", 3, 2, 10, 2))
sketch16.addConstraint(Sketcher.Constraint("Vertical", 2, 2, 5, 2))
sketch16.addConstraint(Sketcher.Constraint("Vertical", 8, 2, 11, 2))
sketch16.addConstraint(Sketcher.Constraint("Equal", 5, 9))
sketch16.addConstraint(Sketcher.Constraint("Equal", 7, 4))
sketch16.addConstraint(Sketcher.Constraint("Equal", 8, 12))
sketch16.addConstraint(Sketcher.Constraint("DistanceX", 7, 1, 7, 2, 4.0))
sketch16.addConstraint(Sketcher.Constraint("DistanceY", 2, 1, 2, 2, 46.0))
sketch16.addConstraint(Sketcher.Constraint("DistanceY", 6, 1, 6, 2, 49.0))
sketch16.addConstraint(Sketcher.Constraint("DistanceX", -1, 1, 9, 2, 111.0))
sketch16.addConstraint(Sketcher.Constraint("DistanceX", 3, 2, 3, 1, 48.65))
sketch16.addConstraint(Sketcher.Constraint("DistanceY", -1, 1, 0, 2, 9.7))
sketch16.addConstraint(Sketcher.Constraint("DistanceX", 0, 2, 0, 1, 3.993146))
pad7 = doc.addObject("PartDesign::Pad", "Pad006")
body.addObject(pad7)
pad7.Profile = sketch16
pad7.Length = 7.2
doc.recompute()

fillet8 = doc.addObject("PartDesign::Fillet", "Fillet007")
body.addObject(fillet8)
fillet8.Base = (pad7, edges_at(pad7, [(111, 62.7, 3.6), (62.35, 62.7, 3.6), (62.35, 111.7, 3.6)]))
fillet8.Radius = 3
doc.recompute()

fillet9 = doc.addObject("PartDesign::Fillet", "Fillet008")
body.addObject(fillet9)
fillet9.Base = (fillet8, edges_at(fillet8, [(111, 58.7, 3.6), (62.35, 9.7, 3.6), (62.35, 58.7, 3.6)]))
fillet9.Radius = 3
doc.recompute()

fillet10 = doc.addObject("PartDesign::Fillet", "Fillet009")
body.addObject(fillet10)
fillet10.Base = (fillet9, edges_at(fillet9, [(58.35, 111.7, 3.6), (58.35, 62.7, 3.6), (9.7, 62.7, 3.6)]))
fillet10.Radius = 3
doc.recompute()

fillet11 = doc.addObject("PartDesign::Fillet", "Fillet010")
body.addObject(fillet11)
fillet11.Base = (fillet10, edges_at(fillet10, [(58.35, 58.7, 3.6)]))
fillet11.Radius = 3

sketch17 = doc.addObject("Sketcher::SketchObject", "Sketch016")
body.addObject(sketch17)
sketch17.AttachmentSupport = (doc.XY_Plane, [""])
sketch17.MapMode = "FlatFace"
add_polygon(sketch17, [(6, 21), (21, 6), (6, 6)])
sketch17.addConstraint(Sketcher.Constraint("Horizontal", 1))
sketch17.addConstraint(Sketcher.Constraint("Vertical", 2))
sketch17.addConstraint(Sketcher.Constraint("Equal", 1, 2))
sketch17.addConstraint(Sketcher.Constraint("DistanceX", 1, 2, 1, 1, 15.0))
sketch17.addConstraint(Sketcher.Constraint("DistanceX", -1, 1, 0, 2, 20.7))
sketch17.addConstraint(Sketcher.Constraint("DistanceY", -1, 1, 0, 2, 5.7))
pad8 = doc.addObject("PartDesign::Pad", "Pad007")
body.addObject(pad8)
pad8.Profile = sketch17
pad8.Length = 7.2

sketch18 = doc.addObject("Sketcher::SketchObject", "Sketch017")
body.addObject(sketch18)
sketch18.AttachmentSupport = (doc.XY_Plane, [""])
sketch18.MapMode = "FlatFace"
sketch18.AttachmentOffset = App.Placement(App.Vector(0, 0, 7.2), App.Rotation())
sketch18.addGeometry(Part.LineSegment(App.Vector(9.2, 8.6, 0), App.Vector(10, 8.6, 0)), False)
sketch18.addGeometry(Part.ArcOfCircle(Part.Circle(App.Vector(10, 10.2, 0), App.Vector(0, 0, 1), 1.6), math.radians(-90), math.radians(90)), False)
sketch18.addGeometry(Part.LineSegment(App.Vector(10, 11.8, 0), App.Vector(9.2, 11.8, 0)), False)
sketch18.addGeometry(Part.ArcOfCircle(Part.Circle(App.Vector(9.2, 10.2, 0), App.Vector(0, 0, 1), 1.6), math.radians(90), math.radians(270)), False)
sketch18.addConstraint(Sketcher.Constraint("Tangent", 0, 2, 1, 1))
sketch18.addConstraint(Sketcher.Constraint("Tangent", 1, 2, 2, 1))
sketch18.addConstraint(Sketcher.Constraint("Tangent", 2, 2, 3, 1))
sketch18.addConstraint(Sketcher.Constraint("Tangent", 3, 2, 0, 1))
sketch18.addConstraint(Sketcher.Constraint("Horizontal", 0))
sketch18.addConstraint(Sketcher.Constraint("Horizontal", 2))
sketch18.addConstraint(Sketcher.Constraint("Radius", 1, 1.6))
sketch18.addConstraint(Sketcher.Constraint("DistanceX", 0, 1, 0, 2, 0.8))
sketch18.addConstraint(Sketcher.Constraint("DistanceX", -1, 1, 1, 3, 10.0))
sketch18.addConstraint(Sketcher.Constraint("DistanceY", -1, 1, 1, 3, 10.2))
pocket10 = doc.addObject("PartDesign::Pocket", "Pocket009")
body.addObject(pocket10)
pocket10.Profile = sketch18
pocket10.Type = "UpToFirst"

sketch19 = doc.addObject("Sketcher::SketchObject", "Sketch018")
body.addObject(sketch19)
sketch19.AttachmentSupport = (doc.XY_Plane, [""])
sketch19.MapMode = "FlatFace"
sketch19.AttachmentOffset = App.Placement(App.Vector(0, 0, 7.2), App.Rotation())
add_polygon(sketch19, [(13, 6), (21, 6), (21, 21), (6, 21), (6, 13), (13, 13)])
sketch19.addConstraint(Sketcher.Constraint("Horizontal", 0))
sketch19.addConstraint(Sketcher.Constraint("Vertical", 1))
sketch19.addConstraint(Sketcher.Constraint("Horizontal", 2))
sketch19.addConstraint(Sketcher.Constraint("Vertical", 3))
sketch19.addConstraint(Sketcher.Constraint("Horizontal", 4))
sketch19.addConstraint(Sketcher.Constraint("Vertical", 5))
sketch19.addConstraint(Sketcher.Constraint("Equal", 0, 4))
sketch19.addConstraint(Sketcher.Constraint("Equal", 2, 1))
sketch19.addConstraint(Sketcher.Constraint("Equal", 4, 3))
sketch19.addConstraint(Sketcher.Constraint("DistanceX", 2, 2, 2, 1, 15.0))
sketch19.addConstraint(Sketcher.Constraint("DistanceX", -1, 1, 0, 2, 20.7))
sketch19.addConstraint(Sketcher.Constraint("DistanceY", -1, 1, 0, 2, 5.7))
pocket11 = doc.addObject("PartDesign::Pocket", "Pocket010")
body.addObject(pocket11)
pocket11.Profile = sketch19
pocket11.Length = 7.2
doc.recompute()

fillet12 = doc.addObject("PartDesign::Fillet", "Fillet011")
body.addObject(fillet12)
fillet12.Base = (pocket11, edges_at(pocket11, [(5.7, 13.2, 3.6), (13.2, 5.7, 3.6), (13.2, 13.2, 3.6)]))
fillet12.Radius = 3

sketch20 = doc.addObject("Sketcher::SketchObject", "Sketch019")
body.addObject(sketch20)
sketch20.AttachmentSupport = (doc.XY_Plane, [""])
sketch20.MapMode = "FlatFace"
sketch20.addGeometry(Part.Circle(App.Vector(60.4, 60.7, 0), App.Vector(0, 0, 1), 1.6), False)
sketch20.addConstraint(Sketcher.Constraint("Diameter", 0, 3.2))
sketch20.addConstraint(Sketcher.Constraint("DistanceY", -1, 1, 0, 3, 60.7))
sketch20.addConstraint(Sketcher.Constraint("DistanceX", -1, 1, 0, 3, 60.35))
pocket12 = doc.addObject("PartDesign::Pocket", "Pocket011")
body.addObject(pocket12)
pocket12.Profile = sketch20
pocket12.Type = "UpToFirst"
pocket12.Reversed = True

doc.recompute()
